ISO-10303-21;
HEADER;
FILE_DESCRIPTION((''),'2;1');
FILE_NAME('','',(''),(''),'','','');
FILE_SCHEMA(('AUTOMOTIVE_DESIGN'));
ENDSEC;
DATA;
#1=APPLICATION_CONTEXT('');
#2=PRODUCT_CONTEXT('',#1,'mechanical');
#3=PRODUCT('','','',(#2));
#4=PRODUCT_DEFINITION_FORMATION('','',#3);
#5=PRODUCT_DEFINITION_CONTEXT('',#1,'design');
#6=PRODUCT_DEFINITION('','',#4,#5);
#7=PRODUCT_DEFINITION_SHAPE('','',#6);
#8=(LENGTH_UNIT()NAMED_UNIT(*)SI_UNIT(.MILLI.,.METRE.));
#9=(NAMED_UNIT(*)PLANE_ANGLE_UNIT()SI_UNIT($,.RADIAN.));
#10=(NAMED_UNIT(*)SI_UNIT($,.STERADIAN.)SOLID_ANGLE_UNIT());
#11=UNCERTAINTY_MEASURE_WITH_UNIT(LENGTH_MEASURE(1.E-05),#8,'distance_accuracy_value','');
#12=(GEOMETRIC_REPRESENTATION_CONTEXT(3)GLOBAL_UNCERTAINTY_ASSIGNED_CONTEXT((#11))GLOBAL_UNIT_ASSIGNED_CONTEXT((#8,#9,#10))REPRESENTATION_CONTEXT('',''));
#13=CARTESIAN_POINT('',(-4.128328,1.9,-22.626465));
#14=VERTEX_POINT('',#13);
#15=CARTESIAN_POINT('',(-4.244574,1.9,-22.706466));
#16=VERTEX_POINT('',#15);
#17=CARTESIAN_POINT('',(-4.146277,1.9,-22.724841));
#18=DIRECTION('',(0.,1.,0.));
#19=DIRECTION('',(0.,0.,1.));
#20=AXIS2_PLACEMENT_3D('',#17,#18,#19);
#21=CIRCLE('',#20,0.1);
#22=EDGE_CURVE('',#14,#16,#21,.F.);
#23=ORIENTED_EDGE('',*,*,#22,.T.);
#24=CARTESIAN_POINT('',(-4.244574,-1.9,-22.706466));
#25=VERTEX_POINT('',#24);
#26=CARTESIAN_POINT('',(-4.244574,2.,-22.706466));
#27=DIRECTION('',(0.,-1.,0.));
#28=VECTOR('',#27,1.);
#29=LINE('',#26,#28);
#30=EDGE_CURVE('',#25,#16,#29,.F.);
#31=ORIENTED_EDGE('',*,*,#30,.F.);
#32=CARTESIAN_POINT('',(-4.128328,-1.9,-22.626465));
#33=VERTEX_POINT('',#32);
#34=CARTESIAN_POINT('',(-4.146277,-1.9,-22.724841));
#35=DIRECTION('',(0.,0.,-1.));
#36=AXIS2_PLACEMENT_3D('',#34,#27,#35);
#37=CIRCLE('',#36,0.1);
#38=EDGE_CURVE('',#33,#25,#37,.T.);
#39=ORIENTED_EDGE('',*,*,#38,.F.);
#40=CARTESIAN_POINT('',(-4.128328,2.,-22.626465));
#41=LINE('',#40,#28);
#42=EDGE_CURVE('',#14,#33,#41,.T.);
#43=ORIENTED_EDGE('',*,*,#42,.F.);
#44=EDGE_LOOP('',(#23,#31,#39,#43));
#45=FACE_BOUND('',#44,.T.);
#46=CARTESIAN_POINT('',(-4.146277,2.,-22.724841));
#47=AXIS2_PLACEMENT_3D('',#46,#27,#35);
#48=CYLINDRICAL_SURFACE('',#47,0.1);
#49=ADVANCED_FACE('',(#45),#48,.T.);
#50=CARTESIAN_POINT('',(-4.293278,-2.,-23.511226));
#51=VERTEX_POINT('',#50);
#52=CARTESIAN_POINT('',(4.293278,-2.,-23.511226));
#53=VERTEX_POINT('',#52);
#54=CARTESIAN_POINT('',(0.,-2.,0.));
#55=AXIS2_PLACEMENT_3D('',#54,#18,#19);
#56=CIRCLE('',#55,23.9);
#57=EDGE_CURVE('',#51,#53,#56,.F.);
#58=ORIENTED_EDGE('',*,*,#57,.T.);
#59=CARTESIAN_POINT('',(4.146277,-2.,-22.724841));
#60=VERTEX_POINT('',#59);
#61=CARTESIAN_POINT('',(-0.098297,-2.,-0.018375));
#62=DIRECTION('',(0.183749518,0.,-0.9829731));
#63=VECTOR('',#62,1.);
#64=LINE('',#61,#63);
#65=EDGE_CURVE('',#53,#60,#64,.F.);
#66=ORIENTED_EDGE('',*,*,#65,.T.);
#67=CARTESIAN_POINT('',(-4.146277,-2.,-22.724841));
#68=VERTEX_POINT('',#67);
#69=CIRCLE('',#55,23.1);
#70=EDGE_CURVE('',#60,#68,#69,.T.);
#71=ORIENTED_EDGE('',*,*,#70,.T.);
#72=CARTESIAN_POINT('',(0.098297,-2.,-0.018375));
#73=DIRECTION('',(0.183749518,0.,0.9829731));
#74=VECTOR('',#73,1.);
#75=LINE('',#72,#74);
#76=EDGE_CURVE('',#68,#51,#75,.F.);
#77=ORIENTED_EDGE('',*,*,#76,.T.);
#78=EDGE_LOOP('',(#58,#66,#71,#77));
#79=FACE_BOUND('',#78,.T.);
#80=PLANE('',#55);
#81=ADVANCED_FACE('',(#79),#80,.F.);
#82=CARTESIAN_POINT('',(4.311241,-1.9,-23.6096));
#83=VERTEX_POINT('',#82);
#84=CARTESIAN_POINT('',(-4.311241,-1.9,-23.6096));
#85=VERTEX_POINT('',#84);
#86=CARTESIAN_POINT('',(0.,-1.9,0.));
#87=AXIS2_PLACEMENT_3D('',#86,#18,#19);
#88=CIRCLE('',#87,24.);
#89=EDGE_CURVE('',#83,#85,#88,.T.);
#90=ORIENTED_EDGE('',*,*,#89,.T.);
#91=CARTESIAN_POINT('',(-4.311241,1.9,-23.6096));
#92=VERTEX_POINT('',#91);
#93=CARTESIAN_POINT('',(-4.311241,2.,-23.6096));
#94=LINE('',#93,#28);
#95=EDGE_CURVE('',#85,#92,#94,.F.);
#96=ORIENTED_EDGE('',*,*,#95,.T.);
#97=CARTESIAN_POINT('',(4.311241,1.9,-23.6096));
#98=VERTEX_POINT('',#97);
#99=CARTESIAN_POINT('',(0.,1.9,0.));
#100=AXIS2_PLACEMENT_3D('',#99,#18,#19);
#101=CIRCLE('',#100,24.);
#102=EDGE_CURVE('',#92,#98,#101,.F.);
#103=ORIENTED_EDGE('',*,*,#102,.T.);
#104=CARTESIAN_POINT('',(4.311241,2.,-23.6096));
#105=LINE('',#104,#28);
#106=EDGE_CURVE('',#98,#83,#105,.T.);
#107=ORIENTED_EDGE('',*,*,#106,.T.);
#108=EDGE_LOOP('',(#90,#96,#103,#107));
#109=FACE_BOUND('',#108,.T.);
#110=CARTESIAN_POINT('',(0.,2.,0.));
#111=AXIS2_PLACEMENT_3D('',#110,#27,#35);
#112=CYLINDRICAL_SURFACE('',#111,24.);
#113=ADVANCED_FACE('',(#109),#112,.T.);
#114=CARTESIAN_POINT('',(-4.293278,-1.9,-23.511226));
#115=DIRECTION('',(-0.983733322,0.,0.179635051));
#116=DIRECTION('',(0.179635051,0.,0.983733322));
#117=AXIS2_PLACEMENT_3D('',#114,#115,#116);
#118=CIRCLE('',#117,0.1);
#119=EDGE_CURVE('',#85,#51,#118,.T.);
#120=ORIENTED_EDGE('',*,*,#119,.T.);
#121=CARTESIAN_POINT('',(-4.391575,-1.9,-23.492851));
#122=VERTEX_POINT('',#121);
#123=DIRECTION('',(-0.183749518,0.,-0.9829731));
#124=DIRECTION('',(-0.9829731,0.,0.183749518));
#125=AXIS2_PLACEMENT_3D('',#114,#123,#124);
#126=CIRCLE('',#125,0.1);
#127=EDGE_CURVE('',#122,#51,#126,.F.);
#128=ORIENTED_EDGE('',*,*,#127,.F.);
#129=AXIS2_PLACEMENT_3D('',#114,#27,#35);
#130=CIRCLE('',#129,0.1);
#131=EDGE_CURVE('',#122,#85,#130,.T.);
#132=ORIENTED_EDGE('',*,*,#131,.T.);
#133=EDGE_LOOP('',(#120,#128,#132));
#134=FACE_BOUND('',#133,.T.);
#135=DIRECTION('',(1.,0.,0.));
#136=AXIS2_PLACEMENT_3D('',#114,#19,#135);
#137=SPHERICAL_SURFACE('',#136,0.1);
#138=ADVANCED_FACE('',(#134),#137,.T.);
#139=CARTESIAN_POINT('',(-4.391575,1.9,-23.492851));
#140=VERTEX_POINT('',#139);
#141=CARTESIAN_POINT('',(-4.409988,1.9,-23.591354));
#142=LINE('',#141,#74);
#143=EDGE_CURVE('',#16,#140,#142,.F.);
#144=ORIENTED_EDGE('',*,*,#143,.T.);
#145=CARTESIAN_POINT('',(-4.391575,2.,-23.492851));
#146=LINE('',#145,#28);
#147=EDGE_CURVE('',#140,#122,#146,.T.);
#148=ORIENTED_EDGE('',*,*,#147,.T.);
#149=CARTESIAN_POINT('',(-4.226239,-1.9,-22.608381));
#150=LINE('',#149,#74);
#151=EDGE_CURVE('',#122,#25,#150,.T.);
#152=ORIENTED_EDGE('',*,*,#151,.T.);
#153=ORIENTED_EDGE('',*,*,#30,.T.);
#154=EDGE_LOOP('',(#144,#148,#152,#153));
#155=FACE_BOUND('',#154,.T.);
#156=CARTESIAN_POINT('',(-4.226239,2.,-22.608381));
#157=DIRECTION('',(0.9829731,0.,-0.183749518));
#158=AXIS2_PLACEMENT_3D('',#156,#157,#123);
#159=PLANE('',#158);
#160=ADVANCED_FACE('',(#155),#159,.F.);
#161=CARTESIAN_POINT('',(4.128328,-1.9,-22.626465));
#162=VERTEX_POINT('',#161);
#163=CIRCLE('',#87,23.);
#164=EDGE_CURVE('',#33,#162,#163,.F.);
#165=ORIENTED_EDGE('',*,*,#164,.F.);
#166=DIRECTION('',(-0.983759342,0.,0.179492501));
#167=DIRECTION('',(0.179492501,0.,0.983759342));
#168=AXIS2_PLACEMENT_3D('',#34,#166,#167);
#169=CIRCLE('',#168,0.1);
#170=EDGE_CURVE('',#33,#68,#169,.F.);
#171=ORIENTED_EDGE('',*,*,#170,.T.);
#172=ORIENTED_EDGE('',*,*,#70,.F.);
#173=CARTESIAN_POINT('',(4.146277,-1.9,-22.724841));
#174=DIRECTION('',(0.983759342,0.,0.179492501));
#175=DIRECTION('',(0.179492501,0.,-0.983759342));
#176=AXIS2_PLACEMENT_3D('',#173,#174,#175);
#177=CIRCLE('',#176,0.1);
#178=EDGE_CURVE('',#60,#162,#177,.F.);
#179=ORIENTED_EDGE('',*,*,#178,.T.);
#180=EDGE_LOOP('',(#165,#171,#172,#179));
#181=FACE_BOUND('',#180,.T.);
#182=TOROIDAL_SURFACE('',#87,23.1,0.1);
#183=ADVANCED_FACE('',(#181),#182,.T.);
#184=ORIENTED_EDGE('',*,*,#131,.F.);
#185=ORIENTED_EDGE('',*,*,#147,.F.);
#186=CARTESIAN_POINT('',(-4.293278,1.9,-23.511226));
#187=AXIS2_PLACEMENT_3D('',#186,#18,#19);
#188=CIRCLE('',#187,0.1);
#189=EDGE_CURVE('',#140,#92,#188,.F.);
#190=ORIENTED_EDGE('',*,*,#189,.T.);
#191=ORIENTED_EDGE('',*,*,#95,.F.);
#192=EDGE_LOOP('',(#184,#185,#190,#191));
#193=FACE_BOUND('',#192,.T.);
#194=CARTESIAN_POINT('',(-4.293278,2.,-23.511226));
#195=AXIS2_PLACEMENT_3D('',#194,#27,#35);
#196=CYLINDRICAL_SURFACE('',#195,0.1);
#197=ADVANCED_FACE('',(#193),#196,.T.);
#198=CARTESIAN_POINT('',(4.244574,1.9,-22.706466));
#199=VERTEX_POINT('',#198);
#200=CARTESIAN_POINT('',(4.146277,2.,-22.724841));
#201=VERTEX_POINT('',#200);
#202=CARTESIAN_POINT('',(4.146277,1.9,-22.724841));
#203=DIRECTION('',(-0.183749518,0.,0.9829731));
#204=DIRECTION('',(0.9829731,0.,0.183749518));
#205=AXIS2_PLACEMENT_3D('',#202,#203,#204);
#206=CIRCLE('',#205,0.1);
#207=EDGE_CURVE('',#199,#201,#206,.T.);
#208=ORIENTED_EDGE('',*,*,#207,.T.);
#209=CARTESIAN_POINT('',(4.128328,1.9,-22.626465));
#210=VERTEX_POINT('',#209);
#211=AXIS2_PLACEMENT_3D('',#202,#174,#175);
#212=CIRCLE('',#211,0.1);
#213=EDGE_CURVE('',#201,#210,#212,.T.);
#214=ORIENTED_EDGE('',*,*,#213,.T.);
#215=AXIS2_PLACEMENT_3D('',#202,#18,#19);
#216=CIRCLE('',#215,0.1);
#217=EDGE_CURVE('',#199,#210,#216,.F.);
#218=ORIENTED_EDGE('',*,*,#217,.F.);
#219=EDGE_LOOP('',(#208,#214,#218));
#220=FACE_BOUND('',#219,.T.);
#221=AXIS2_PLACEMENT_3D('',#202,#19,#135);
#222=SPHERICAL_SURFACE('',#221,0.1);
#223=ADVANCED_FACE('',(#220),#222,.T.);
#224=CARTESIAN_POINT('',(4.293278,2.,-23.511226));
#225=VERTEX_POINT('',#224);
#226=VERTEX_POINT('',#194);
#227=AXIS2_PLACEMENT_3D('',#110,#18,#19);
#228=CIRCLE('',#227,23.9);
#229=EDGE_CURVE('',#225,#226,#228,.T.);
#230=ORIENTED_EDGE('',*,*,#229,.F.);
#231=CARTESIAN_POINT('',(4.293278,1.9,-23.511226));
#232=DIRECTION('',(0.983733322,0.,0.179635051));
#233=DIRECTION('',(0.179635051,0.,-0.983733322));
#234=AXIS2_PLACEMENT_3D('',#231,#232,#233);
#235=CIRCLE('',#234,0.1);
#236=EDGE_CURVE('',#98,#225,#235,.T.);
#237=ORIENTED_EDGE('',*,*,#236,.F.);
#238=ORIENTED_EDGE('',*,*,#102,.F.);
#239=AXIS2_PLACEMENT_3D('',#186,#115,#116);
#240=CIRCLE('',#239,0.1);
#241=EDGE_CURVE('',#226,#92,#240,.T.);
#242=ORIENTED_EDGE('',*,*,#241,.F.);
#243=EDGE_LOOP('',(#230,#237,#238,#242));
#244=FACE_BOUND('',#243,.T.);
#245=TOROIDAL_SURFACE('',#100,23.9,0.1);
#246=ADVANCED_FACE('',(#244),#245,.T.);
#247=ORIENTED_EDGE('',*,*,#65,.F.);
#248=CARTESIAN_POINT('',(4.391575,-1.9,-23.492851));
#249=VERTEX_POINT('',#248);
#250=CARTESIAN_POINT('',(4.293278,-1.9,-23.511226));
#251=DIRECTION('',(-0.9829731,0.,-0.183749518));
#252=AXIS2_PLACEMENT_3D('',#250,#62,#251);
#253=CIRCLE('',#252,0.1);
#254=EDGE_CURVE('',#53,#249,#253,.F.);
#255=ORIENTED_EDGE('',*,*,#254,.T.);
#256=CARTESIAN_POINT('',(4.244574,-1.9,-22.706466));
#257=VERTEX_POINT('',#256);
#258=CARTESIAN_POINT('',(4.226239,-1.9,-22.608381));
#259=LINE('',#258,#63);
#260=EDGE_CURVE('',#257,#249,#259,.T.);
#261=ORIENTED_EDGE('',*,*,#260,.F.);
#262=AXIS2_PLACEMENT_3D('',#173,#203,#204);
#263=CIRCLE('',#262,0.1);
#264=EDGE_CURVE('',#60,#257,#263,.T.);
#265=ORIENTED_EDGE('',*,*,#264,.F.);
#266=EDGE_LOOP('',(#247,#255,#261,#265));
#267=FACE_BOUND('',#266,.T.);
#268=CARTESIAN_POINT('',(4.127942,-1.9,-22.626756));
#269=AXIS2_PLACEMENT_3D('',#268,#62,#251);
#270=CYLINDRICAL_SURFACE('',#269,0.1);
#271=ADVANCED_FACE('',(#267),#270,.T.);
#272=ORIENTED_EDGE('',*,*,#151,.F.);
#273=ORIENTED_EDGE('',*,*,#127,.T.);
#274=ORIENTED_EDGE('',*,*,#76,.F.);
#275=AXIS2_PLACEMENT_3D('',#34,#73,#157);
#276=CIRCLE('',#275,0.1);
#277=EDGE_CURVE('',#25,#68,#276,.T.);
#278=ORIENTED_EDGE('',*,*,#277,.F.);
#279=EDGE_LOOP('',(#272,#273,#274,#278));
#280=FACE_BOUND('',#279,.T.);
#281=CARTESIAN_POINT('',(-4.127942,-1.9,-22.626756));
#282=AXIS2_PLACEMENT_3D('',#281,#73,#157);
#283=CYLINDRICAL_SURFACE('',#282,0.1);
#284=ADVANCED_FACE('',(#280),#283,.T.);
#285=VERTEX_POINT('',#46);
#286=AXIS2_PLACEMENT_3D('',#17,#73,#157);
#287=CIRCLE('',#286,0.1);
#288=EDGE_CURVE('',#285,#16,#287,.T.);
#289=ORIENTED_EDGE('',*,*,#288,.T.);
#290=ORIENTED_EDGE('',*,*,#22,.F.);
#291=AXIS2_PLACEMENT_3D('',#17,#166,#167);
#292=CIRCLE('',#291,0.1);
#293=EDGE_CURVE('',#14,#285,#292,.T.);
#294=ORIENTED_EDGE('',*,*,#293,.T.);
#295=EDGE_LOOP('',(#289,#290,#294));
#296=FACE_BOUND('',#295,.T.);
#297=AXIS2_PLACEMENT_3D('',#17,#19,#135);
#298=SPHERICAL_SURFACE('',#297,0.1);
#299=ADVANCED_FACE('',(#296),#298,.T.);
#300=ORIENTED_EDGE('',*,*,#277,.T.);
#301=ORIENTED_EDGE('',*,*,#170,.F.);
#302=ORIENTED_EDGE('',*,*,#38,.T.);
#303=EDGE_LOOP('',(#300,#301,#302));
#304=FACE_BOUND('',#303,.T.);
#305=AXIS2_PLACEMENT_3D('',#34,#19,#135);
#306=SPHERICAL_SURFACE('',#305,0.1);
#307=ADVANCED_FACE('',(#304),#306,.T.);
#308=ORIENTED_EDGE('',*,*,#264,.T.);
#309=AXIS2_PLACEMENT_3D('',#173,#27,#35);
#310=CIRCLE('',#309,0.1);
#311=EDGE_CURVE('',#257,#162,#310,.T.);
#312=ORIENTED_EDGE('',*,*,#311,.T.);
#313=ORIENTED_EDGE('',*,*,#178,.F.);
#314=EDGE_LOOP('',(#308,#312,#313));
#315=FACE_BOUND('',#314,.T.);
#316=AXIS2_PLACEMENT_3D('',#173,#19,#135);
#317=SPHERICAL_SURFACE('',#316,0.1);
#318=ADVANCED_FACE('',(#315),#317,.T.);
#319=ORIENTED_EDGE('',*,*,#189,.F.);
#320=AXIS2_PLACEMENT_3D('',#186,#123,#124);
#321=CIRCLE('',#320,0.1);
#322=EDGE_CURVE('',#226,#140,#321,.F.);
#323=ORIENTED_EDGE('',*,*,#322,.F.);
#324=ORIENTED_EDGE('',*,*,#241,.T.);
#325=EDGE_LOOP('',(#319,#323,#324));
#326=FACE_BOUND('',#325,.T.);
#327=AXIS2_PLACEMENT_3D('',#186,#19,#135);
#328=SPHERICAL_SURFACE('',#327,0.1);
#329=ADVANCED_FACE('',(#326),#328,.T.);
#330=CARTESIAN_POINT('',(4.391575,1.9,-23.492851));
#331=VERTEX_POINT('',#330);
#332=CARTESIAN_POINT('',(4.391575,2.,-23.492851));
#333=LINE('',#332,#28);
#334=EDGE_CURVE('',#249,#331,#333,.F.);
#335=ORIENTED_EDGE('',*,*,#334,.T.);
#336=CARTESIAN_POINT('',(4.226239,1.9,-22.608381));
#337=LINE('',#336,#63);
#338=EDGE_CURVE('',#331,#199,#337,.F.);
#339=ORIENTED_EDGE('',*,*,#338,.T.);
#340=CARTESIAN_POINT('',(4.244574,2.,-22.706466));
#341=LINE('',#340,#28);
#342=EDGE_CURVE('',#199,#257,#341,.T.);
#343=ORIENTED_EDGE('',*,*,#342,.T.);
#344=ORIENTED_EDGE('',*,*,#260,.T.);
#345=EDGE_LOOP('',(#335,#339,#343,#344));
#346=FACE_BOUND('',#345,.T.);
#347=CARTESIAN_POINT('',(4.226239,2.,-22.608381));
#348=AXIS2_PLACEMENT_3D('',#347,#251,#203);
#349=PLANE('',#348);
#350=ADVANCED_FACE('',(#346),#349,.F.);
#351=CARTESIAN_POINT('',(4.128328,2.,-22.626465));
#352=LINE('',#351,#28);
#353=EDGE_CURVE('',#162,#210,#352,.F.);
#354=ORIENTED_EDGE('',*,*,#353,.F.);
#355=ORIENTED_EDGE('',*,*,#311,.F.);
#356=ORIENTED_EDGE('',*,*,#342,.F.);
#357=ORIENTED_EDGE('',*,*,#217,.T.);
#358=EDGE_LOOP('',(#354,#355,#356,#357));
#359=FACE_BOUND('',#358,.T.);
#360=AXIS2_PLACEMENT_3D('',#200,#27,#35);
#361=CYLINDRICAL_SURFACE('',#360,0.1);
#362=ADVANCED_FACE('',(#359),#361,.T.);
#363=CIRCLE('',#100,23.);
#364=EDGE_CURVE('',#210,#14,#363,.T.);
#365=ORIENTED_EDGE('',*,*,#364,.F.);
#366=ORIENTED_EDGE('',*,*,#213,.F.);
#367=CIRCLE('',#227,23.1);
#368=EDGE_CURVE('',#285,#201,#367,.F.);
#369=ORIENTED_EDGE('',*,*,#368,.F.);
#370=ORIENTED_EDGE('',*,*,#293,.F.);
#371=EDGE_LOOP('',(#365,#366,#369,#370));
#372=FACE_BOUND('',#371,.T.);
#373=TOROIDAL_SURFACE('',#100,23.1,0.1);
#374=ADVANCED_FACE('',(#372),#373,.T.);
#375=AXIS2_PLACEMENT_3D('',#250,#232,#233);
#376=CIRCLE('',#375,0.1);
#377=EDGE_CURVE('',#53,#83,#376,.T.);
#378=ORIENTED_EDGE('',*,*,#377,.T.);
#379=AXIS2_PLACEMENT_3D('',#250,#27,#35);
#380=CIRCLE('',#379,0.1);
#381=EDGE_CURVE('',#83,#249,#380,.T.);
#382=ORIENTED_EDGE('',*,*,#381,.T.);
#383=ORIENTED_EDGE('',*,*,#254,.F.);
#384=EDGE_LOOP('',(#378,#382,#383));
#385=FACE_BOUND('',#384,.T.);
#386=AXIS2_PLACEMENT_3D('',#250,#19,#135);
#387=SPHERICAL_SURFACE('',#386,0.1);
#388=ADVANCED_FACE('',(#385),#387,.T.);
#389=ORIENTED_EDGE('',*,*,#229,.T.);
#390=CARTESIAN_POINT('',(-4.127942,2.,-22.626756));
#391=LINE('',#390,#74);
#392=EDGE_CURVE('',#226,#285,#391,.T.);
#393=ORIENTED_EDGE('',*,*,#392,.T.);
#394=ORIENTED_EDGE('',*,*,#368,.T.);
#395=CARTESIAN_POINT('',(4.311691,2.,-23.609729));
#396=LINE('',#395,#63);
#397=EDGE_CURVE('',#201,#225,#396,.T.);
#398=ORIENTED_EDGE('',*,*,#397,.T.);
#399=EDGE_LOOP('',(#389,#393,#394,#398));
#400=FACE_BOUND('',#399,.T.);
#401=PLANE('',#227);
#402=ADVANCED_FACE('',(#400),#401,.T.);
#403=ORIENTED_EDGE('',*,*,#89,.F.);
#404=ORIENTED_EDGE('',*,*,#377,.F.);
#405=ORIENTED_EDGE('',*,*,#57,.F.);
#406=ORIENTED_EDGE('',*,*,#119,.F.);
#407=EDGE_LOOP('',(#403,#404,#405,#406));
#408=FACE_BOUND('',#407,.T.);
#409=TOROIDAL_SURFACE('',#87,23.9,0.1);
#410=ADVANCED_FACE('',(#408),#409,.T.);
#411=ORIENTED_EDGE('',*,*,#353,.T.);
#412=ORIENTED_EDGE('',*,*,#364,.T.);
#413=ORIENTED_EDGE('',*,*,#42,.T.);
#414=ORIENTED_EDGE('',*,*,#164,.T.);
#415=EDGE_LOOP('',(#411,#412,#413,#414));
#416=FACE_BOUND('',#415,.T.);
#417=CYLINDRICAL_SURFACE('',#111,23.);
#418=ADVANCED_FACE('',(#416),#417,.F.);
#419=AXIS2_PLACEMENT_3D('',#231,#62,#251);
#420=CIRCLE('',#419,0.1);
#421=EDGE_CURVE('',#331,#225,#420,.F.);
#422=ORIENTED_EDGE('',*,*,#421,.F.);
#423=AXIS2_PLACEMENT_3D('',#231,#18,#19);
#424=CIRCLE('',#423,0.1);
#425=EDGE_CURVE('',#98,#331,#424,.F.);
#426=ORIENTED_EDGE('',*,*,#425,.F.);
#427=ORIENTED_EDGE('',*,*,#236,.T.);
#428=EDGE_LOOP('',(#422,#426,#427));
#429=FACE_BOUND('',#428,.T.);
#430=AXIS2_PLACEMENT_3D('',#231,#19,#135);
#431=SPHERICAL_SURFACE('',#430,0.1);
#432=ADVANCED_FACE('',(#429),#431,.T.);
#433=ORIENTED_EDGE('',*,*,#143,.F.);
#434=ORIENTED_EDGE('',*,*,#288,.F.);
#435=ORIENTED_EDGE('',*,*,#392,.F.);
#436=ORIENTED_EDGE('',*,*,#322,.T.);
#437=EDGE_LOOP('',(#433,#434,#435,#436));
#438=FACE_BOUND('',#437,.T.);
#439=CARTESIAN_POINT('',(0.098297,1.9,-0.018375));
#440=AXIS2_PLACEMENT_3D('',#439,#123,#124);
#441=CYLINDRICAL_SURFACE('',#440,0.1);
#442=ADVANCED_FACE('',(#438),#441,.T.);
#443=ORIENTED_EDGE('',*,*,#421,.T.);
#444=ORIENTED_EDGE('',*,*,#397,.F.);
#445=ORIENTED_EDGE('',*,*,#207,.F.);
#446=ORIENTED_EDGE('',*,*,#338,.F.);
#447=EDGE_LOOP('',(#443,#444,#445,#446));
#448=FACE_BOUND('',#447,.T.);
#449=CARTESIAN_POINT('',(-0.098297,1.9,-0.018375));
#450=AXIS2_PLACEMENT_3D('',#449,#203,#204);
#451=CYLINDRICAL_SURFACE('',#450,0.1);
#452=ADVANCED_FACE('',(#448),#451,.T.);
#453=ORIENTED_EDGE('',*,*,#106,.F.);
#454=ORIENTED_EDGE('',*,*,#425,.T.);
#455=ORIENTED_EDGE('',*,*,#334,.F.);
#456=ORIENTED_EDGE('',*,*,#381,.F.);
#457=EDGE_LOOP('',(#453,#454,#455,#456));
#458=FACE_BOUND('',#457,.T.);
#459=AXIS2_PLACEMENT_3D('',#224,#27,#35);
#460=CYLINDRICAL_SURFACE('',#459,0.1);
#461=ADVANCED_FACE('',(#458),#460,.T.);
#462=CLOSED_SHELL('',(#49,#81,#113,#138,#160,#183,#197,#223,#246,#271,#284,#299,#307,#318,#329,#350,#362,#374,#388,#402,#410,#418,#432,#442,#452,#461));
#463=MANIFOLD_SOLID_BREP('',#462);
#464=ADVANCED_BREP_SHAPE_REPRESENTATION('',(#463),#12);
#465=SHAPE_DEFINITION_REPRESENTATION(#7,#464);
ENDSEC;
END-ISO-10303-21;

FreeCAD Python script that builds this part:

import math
import FreeCAD as App
import Part
import Sketcher

V = App.Vector
Q = App.Units.Quantity

doc = App.newDocument("Part")
body = doc.addObject("PartDesign::Body", "Body")

sketch1 = body.newObject("Sketcher::SketchObject", "Sketch")
sketch1.AttachmentSupport = (doc.getObject("XZ_Plane"), [""])
sketch1.MapMode = "FlatFace"
sketch1.addGeometry(Part.LineSegment(V(4.2, -22.6, 0), V(4.4, -23.6, 0)), False)
sketch1.addGeometry(Part.ArcOfCircle(Part.Circle(V(0, 0, 0), V(0, 0, 1), 24), math.radians(-101), math.radians(-79)), False)
sketch1.addGeometry(Part.LineSegment(V(-4.4, -23.6, 0), V(-4.2, -22.6, 0)), False)
sketch1.addGeometry(Part.ArcOfCircle(Part.Circle(V(0, 0, 0), V(0, 0, 1), 23), math.radians(-101), math.radians(-79)), False)
sketch1.addConstraint(Sketcher.Constraint("Coincident", 0, 2, 1, 2))
sketch1.addConstraint(Sketcher.Constraint("Coincident", 1, 1, 2, 1))
sketch1.addConstraint(Sketcher.Constraint("Coincident", 2, 2, 3, 1))
sketch1.addConstraint(Sketcher.Constraint("Coincident", 3, 2, 0, 1))
sketch1.addConstraint(Sketcher.Constraint("Coincident", 1, 3, -1, 1))
sketch1.addConstraint(Sketcher.Constraint("Coincident", 3, 3, -1, 1))
sketch1.addConstraint(Sketcher.Constraint("Horizontal", 0, 2, 1, 1))
sketch1.addConstraint(Sketcher.Constraint("Horizontal", 2, 2, 3, 2))
sketch1.addConstraint(Sketcher.Constraint("Radius", 1, Q("24 mm")))
sketch1.addConstraint(Sketcher.Constraint("Radius", 3, Q("23 mm")))
sketch1.addConstraint(Sketcher.Constraint("DistanceX", -1, 1, 0, 2, Q("4.409988 mm")))
sketch1.addConstraint(Sketcher.Constraint("DistanceX", 2, 2, -1, 1, Q("4.226239 mm")))
pad1 = body.newObject("PartDesign::Pad", "Pad")
pad1.Profile = sketch1
pad1.Length = 4
pad1.Midplane = True
doc.recompute()

fillet = body.newObject("PartDesign::Fillet", "Fillet")
fillet.Base = (pad1, ["Edge1"])
fillet.UseAllEdges = True
fillet.Radius = 0.1

doc.recompute()
